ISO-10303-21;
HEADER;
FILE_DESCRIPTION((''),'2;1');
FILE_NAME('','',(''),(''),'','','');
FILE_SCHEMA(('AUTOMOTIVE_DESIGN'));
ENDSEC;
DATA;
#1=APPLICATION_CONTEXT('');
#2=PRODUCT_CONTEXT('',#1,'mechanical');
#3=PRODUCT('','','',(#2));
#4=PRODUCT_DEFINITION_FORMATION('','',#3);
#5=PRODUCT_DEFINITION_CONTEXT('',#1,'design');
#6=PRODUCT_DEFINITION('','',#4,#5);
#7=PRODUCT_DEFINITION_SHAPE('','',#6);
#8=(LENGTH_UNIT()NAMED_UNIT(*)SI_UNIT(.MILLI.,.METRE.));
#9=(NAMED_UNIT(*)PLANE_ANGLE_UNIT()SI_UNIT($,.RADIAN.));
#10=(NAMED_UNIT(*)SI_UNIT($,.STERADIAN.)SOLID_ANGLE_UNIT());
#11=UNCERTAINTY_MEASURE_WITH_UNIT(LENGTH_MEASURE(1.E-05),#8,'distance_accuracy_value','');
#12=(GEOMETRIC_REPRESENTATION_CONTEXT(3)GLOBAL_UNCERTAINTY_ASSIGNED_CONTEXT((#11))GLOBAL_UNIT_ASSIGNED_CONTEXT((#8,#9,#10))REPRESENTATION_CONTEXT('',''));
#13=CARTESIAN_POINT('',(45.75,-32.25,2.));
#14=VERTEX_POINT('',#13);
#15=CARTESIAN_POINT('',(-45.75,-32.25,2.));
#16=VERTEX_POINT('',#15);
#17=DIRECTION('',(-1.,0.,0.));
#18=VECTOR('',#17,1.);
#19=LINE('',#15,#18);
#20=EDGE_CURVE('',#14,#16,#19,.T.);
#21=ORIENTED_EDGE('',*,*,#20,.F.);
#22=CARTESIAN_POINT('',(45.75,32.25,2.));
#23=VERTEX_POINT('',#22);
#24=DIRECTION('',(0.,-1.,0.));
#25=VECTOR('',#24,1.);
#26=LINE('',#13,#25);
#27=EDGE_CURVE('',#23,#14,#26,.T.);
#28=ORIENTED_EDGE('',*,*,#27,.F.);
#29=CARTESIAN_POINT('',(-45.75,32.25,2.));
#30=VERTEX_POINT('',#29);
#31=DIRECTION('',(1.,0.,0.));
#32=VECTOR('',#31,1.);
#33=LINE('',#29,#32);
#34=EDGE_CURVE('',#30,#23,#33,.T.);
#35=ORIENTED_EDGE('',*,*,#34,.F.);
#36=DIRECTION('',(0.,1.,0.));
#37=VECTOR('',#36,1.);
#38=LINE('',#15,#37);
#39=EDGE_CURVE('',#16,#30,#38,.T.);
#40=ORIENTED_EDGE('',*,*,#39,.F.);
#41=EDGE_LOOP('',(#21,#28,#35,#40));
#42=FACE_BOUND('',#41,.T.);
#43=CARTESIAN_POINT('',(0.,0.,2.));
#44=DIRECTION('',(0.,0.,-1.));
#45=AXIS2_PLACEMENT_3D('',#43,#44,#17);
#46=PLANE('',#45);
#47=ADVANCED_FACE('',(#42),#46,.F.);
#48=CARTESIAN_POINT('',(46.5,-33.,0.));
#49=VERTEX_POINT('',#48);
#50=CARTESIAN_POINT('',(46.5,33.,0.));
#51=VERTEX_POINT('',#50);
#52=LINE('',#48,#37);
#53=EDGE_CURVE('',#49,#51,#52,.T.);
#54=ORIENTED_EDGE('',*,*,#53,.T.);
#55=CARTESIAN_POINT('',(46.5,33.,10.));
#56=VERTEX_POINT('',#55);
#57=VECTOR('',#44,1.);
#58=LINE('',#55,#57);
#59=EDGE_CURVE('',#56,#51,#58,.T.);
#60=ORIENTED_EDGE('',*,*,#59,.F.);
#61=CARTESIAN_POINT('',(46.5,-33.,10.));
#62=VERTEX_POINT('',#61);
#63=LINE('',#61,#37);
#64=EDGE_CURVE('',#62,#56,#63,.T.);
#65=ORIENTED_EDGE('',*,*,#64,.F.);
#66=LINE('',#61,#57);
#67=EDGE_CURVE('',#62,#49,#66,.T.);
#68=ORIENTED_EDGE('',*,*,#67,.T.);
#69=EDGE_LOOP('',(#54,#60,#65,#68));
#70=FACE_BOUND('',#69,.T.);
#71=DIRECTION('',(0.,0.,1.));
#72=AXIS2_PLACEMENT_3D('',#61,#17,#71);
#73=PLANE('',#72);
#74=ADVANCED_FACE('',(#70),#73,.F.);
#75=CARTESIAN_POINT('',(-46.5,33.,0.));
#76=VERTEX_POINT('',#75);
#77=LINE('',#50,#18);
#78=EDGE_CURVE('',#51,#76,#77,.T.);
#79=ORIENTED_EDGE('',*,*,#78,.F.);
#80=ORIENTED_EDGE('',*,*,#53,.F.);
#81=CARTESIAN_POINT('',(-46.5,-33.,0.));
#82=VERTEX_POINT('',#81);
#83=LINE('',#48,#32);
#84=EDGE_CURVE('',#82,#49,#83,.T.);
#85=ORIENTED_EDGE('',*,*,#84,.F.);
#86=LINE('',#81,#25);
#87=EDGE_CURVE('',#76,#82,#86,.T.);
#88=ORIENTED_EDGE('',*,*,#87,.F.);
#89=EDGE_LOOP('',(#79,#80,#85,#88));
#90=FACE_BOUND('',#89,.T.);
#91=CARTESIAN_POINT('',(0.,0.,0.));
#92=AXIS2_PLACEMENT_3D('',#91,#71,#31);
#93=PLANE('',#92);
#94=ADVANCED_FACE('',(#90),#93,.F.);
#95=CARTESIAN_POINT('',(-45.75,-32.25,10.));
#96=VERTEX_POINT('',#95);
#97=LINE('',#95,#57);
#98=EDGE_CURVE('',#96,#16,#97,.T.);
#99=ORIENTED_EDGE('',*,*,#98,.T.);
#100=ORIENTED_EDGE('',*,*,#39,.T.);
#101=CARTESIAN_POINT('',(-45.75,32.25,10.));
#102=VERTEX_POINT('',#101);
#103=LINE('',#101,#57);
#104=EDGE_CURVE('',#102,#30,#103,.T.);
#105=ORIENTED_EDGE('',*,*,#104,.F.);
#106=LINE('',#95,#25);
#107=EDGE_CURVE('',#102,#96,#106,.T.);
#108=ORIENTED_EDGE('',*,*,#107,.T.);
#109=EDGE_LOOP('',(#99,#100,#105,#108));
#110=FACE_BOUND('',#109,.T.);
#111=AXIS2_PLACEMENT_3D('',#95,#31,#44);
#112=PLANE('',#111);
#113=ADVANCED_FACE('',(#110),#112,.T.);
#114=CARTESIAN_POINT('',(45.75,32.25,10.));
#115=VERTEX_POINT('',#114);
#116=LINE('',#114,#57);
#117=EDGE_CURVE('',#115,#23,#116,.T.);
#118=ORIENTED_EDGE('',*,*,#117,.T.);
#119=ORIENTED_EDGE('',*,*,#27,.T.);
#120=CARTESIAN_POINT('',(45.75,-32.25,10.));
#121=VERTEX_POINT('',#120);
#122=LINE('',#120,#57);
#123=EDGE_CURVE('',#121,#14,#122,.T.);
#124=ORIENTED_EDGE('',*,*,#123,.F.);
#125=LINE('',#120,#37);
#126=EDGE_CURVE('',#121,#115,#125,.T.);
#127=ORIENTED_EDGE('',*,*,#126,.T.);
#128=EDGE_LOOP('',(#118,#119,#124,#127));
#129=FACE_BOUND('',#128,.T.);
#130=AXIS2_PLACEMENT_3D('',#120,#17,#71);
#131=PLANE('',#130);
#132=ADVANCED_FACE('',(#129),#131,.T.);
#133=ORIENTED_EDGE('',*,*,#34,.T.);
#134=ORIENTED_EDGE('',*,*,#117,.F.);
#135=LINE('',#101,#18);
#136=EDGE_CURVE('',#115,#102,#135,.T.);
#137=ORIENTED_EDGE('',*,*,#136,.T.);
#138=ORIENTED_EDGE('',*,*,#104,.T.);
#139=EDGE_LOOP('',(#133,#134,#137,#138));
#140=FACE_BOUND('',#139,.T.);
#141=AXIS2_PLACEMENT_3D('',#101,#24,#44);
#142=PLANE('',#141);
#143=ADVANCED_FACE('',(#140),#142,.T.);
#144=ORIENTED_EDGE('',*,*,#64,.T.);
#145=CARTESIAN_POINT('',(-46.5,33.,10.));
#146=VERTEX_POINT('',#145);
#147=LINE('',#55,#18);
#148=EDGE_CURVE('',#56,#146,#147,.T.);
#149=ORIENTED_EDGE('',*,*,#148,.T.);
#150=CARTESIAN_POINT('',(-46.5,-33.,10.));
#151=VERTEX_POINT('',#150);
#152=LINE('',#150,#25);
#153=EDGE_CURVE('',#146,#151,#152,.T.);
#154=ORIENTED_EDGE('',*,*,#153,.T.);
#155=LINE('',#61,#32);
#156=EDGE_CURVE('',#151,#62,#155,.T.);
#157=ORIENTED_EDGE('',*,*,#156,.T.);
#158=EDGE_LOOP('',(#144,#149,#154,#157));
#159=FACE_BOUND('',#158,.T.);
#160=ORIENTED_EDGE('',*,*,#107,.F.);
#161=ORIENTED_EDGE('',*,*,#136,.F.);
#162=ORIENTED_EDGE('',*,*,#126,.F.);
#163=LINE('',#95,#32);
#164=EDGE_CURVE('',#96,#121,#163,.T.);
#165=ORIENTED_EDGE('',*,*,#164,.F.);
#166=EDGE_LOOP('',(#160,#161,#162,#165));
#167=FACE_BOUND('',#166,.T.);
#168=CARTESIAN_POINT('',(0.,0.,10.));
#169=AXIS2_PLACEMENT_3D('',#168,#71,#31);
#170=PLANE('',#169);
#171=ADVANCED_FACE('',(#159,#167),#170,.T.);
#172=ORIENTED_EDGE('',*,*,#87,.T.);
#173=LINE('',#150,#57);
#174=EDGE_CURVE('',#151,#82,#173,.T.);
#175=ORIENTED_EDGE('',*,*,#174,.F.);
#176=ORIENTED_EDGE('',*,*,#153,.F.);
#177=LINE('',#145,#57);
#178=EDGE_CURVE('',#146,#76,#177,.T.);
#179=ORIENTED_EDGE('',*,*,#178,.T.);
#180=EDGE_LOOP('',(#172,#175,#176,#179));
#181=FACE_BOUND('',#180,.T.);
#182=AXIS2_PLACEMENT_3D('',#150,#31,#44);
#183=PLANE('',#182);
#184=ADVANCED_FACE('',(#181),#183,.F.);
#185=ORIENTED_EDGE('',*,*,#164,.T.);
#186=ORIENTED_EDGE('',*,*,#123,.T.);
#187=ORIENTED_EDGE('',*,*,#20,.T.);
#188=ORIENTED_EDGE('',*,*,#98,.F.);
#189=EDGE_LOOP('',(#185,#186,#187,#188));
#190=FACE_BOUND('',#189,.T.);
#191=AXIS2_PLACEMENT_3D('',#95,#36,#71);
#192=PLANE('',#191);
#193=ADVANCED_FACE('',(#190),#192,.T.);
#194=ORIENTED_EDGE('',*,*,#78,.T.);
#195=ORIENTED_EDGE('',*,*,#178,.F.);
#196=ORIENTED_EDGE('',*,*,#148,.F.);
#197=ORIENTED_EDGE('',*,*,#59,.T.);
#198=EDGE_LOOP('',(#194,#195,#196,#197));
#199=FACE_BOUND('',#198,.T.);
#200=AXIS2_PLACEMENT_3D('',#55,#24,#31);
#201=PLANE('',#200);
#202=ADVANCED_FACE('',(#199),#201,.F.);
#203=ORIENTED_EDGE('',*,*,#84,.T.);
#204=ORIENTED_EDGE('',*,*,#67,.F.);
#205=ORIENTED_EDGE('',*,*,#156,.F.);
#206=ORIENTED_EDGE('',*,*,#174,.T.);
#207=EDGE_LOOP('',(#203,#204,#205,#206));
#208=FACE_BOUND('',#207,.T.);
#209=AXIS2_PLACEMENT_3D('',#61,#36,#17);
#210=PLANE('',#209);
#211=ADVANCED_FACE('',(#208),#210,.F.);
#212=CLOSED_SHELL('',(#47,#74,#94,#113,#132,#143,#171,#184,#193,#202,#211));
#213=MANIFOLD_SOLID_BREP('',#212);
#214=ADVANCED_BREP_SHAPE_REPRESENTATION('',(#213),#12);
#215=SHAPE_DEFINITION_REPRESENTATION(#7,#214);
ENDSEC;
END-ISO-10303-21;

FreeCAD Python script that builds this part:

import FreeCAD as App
import Part
import Sketcher
Q = App.Units.Quantity

doc = App.newDocument("Part")
body = doc.addObject("PartDesign::Body", "Body")

# Sketch on XY plane
sketch1 = doc.addObject("Sketcher::SketchObject", "Sketch")
body.addObject(sketch1)
sketch1.AttachmentSupport = (doc.XY_Plane, [""])
sketch1.MapMode = "FlatFace"
sketch1.addGeometry(Part.LineSegment(App.Vector(-46, 33, 0), App.Vector(-46, -33, 0)), False)
sketch1.addGeometry(Part.LineSegment(App.Vector(-46, -33, 0), App.Vector(46, -33, 0)), False)
sketch1.addGeometry(Part.LineSegment(App.Vector(46, -33, 0), App.Vector(46, 33, 0)), False)
sketch1.addGeometry(Part.LineSegment(App.Vector(46, 33, 0), App.Vector(-46, 33, 0)), False)
sketch1.addGeometry(Part.LineSegment(App.Vector(46, -32, 0), App.Vector(-46, -32, 0)), False)
sketch1.addGeometry(Part.LineSegment(App.Vector(-46, -32, 0), App.Vector(-46, 32, 0)), False)
sketch1.addGeometry(Part.LineSegment(App.Vector(-46, 32, 0), App.Vector(46, 32, 0)), False)
sketch1.addGeometry(Part.LineSegment(App.Vector(46, 32, 0), App.Vector(46, -32, 0)), False)
sketch1.addConstraint(Sketcher.Constraint("Coincident", 0, 2, 1, 1))
sketch1.addConstraint(Sketcher.Constraint("Coincident", 1, 2, 2, 1))
sketch1.addConstraint(Sketcher.Constraint("Coincident", 2, 2, 3, 1))
sketch1.addConstraint(Sketcher.Constraint("Coincident", 3, 2, 0, 1))
sketch1.addConstraint(Sketcher.Constraint("Coincident", 4, 2, 5, 1))
sketch1.addConstraint(Sketcher.Constraint("Coincident", 5, 2, 6, 1))
sketch1.addConstraint(Sketcher.Constraint("Coincident", 6, 2, 7, 1))
sketch1.addConstraint(Sketcher.Constraint("Coincident", 7, 2, 4, 1))
sketch1.addConstraint(Sketcher.Constraint("Vertical", 0))
sketch1.addConstraint(Sketcher.Constraint("Horizontal", 1))
sketch1.addConstraint(Sketcher.Constraint("Vertical", 2))
sketch1.addConstraint(Sketcher.Constraint("Horizontal", 3))
sketch1.addConstraint(Sketcher.Constraint("Horizontal", 4))
sketch1.addConstraint(Sketcher.Constraint("Vertical", 5))
sketch1.addConstraint(Sketcher.Constraint("Horizontal", 6))
sketch1.addConstraint(Sketcher.Constraint("Vertical", 7))
sketch1.addConstraint(Sketcher.Constraint("Symmetric", 0, 2, 2, 2, -1, 1))
sketch1.addConstraint(Sketcher.Constraint("Symmetric", 4, 2, 6, 2, -1, 1))
sketch1.addConstraint(Sketcher.Constraint("DistanceX", 1, 1, 1, 2, Q("93 mm")))
sketch1.addConstraint(Sketcher.Constraint("DistanceY", 0, 2, 0, 1, Q("66 mm")))
sketch1.addConstraint(Sketcher.Constraint("DistanceX", 4, 2, 4, 1, Q("91.5 mm")))
sketch1.addConstraint(Sketcher.Constraint("DistanceY", 5, 1, 5, 2, Q("64.5 mm")))
pad1 = doc.addObject("PartDesign::Pad", "Pad")
body.addObject(pad1)
pad1.Profile = sketch1
pad1.Length = 10

# Sketch on XY plane
sketch2 = doc.addObject("Sketcher::SketchObject", "Sketch001")
body.addObject(sketch2)
sketch2.AttachmentSupport = (doc.XY_Plane, [""])
sketch2.MapMode = "FlatFace"
sketch2.addGeometry(Part.LineSegment(App.Vector(-46, 33, 0), App.Vector(-46, -33, 0)), False)
sketch2.addGeometry(Part.LineSegment(App.Vector(-46, -33, 0), App.Vector(46, -33, 0)), False)
sketch2.addGeometry(Part.LineSegment(App.Vector(46, -33, 0), App.Vector(46, 33, 0)), False)
sketch2.addGeometry(Part.LineSegment(App.Vector(46, 33, 0), App.Vector(-46, 33, 0)), False)
sketch2.addConstraint(Sketcher.Constraint("Coincident", 0, 2, 1, 1))
sketch2.addConstraint(Sketcher.Constraint("Coincident", 1, 2, 2, 1))
sketch2.addConstraint(Sketcher.Constraint("Coincident", 2, 2, 3, 1))
sketch2.addConstraint(Sketcher.Constraint("Coincident", 3, 2, 0, 1))
sketch2.addConstraint(Sketcher.Constraint("Vertical", 0))
sketch2.addConstraint(Sketcher.Constraint("Horizontal", 1))
sketch2.addConstraint(Sketcher.Constraint("Vertical", 2))
sketch2.addConstraint(Sketcher.Constraint("Horizontal", 3))
sketch2.addConstraint(Sketcher.Constraint("Symmetric", 0, 2, 2, 2, -1, 1))
sketch2.addConstraint(Sketcher.Constraint("DistanceX", 1, 1, 1, 2, Q("93 mm")))
sketch2.addConstraint(Sketcher.Constraint("DistanceY", 0, 2, 0, 1, Q("66 mm")))
pad2 = doc.addObject("PartDesign::Pad", "Pad001")
body.addObject(pad2)
pad2.Profile = sketch2
pad2.Length = 2

doc.recompute()
